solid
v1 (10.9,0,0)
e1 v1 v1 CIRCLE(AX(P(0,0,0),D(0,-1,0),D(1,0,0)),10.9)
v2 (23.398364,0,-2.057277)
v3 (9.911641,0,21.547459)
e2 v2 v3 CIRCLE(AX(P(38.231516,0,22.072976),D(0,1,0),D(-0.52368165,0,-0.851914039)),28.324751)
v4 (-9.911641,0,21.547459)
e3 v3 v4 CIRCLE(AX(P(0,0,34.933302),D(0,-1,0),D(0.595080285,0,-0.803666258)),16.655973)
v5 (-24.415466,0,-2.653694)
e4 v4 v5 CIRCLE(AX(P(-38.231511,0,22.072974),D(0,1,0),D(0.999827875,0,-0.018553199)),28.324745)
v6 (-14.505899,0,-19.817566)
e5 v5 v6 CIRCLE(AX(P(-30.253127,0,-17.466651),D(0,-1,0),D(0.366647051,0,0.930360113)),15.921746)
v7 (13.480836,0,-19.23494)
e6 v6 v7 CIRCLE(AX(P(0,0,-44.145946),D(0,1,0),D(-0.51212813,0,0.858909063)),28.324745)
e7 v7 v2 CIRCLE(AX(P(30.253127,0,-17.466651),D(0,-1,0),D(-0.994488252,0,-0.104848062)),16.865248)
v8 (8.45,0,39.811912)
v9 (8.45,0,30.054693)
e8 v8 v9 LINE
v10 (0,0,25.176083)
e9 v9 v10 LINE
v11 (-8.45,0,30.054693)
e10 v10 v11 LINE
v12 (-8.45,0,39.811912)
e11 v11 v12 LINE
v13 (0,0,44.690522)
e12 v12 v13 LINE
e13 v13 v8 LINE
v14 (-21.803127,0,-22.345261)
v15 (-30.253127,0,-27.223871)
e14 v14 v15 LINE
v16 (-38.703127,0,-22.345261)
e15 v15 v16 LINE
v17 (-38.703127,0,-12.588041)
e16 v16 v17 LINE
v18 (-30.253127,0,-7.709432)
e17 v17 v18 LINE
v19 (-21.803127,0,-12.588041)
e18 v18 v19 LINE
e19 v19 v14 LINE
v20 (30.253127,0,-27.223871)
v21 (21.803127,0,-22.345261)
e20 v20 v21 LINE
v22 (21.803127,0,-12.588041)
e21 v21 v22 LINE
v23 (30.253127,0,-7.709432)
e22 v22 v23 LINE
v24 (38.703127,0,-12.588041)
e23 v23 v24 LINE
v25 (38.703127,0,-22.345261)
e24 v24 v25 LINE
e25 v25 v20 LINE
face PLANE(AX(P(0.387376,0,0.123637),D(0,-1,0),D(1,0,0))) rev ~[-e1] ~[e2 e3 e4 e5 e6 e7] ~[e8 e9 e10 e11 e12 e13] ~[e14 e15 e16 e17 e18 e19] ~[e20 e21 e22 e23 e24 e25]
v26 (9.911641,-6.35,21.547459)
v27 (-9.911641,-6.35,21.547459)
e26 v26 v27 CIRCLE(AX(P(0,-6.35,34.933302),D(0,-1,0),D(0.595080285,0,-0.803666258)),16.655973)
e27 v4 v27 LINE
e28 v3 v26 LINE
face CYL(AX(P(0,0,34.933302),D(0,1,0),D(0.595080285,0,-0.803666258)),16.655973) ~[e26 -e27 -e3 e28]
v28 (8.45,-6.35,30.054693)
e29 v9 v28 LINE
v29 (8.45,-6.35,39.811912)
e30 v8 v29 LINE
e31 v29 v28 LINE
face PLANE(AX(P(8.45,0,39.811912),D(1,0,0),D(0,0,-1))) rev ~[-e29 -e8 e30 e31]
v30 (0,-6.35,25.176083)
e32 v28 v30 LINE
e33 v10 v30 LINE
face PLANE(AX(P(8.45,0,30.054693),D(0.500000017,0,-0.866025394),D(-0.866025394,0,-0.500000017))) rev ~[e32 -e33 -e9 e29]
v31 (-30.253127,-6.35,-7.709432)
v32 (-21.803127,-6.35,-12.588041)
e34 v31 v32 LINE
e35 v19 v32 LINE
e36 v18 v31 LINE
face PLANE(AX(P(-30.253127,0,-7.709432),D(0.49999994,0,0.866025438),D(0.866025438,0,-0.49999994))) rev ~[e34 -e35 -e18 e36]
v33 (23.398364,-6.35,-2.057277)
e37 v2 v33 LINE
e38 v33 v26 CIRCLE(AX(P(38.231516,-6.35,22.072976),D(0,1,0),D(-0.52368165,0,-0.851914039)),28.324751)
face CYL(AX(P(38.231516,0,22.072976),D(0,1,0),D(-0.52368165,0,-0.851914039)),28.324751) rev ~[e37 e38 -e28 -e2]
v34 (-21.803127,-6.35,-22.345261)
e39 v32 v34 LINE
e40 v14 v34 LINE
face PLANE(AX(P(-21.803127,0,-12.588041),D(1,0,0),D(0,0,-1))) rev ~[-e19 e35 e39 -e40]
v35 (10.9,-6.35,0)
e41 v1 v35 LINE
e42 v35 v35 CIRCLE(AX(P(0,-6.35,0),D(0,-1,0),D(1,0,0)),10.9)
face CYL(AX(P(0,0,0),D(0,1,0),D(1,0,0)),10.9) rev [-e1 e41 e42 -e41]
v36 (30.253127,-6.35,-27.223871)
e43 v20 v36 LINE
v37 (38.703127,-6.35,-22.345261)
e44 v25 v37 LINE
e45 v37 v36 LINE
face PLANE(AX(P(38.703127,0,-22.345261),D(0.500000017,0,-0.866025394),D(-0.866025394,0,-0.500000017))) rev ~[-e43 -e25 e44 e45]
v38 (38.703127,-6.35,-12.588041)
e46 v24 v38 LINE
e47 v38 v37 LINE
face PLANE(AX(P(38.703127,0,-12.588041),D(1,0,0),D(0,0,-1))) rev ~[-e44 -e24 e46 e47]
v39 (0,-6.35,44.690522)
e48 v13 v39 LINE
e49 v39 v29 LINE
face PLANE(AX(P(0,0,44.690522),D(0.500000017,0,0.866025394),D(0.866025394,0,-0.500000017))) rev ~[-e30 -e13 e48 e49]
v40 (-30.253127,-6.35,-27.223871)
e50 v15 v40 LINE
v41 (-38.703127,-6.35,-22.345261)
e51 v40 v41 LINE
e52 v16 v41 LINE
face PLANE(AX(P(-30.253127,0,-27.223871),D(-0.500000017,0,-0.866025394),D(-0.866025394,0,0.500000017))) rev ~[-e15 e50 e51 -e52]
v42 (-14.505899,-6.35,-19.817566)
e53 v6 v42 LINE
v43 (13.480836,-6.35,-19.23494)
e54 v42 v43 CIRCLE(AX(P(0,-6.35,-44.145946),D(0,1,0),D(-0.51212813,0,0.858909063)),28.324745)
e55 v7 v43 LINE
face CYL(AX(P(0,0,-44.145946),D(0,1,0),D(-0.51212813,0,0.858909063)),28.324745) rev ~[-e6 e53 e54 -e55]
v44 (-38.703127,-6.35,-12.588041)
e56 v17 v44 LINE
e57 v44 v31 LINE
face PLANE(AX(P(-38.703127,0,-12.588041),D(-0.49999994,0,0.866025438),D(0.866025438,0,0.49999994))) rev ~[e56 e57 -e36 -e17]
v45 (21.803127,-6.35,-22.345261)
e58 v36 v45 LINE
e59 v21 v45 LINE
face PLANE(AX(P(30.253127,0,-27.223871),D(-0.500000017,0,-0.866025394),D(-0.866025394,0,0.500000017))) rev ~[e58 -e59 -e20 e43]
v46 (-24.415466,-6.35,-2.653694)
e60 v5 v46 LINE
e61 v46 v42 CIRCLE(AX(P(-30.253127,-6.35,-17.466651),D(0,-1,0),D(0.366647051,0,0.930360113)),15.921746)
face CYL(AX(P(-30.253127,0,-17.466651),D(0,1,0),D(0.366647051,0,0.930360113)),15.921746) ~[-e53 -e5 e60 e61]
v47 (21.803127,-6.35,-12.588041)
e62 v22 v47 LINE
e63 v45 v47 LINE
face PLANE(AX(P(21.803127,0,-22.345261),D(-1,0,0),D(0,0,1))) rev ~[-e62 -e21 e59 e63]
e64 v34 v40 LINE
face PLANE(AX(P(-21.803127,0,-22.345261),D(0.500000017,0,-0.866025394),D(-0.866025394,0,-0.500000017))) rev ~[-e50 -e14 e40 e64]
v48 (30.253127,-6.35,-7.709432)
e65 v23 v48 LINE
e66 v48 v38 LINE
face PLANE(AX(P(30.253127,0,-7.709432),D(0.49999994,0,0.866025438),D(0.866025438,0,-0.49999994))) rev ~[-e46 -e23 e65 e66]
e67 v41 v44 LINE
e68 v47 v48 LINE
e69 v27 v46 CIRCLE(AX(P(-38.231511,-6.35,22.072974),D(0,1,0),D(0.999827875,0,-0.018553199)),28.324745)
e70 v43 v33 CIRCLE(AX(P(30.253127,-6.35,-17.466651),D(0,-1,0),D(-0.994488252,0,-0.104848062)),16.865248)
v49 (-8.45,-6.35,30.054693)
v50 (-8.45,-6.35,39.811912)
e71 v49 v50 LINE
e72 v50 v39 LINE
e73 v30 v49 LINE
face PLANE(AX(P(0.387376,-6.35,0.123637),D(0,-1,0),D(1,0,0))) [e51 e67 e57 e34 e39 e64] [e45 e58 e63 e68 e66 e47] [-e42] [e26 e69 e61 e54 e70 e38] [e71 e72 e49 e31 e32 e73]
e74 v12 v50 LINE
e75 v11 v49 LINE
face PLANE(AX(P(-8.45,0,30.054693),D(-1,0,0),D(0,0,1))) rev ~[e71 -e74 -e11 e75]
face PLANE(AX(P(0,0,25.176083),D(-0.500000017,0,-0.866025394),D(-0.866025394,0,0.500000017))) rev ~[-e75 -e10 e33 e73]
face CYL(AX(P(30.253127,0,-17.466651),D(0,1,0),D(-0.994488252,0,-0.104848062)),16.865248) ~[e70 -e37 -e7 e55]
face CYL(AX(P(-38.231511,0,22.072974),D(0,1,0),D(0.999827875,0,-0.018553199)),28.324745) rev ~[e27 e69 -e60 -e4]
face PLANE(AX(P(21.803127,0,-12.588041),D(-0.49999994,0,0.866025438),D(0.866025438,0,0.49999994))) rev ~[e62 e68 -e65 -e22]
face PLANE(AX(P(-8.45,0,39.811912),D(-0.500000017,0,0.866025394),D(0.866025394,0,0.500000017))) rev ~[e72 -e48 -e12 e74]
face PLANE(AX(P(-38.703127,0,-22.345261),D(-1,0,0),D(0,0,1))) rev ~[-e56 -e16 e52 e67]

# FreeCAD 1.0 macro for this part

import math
import FreeCAD as App
import Part
import Sketcher
from FreeCAD import Vector
Q = App.Units.Quantity

doc = App.newDocument("Part")
body = doc.addObject("PartDesign::Body", "Body")

# Sketch on XZ plane
sketch1 = doc.addObject("Sketcher::SketchObject", "Sketch")
body.addObject(sketch1)
sketch1.AttachmentSupport = (doc.XZ_Plane, [""])
sketch1.MapMode = "FlatFace"
sketch1.addGeometry([
    Part.ArcOfCircle(Part.Circle(Vector(0, -44.145946, 0), Vector(0, 0, 1), 28.324745), math.radians(61.579527), math.radians(120.805688)),  # 0
    Part.ArcOfCircle(Part.Circle(Vector(30.253127, -17.466651, 0), Vector(0, 0, 1), 16.865248), math.radians(-173.981587), math.radians(113.981589)),  # 1
    Part.ArcOfCircle(Part.Circle(Vector(38.231516, 22.072976, 0), Vector(0, 0, 1), 28.324751), math.radians(-178.936915), math.radians(-121.579535)),  # 2
    Part.ArcOfCircle(Part.Circle(Vector(0, 34.933302, 0), Vector(0, 0, 1), 16.655973), math.radians(-53.481644), math.radians(233.481644)),  # 3
    Part.ArcOfCircle(Part.Circle(Vector(-38.231511, 22.072974, 0), Vector(0, 0, 1), 28.324745), math.radians(-60.805691), math.radians(-1.063081)),  # 4
    Part.ArcOfCircle(Part.Circle(Vector(-30.253127, -17.466651, 0), Vector(0, 0, 1), 15.921746), math.radians(68.49102), math.radians(351.508985)),  # 5
    Part.LineSegment(Vector(-30.253127, -7.709432, 0), Vector(-21.803127, -12.588041, 0)),  # 6
    Part.LineSegment(Vector(-21.803127, -12.588041, 0), Vector(-21.803127, -22.345261, 0)),  # 7
    Part.LineSegment(Vector(-21.803127, -22.345261, 0), Vector(-30.253127, -27.223871, 0)),  # 8
    Part.LineSegment(Vector(-30.253127, -27.223871, 0), Vector(-38.703127, -22.345261, 0)),  # 9
    Part.LineSegment(Vector(-38.703127, -22.345261, 0), Vector(-38.703127, -12.588041, 0)),  # 10
    Part.LineSegment(Vector(-38.703127, -12.588041, 0), Vector(-30.253127, -7.709432, 0)),  # 11
    Part.LineSegment(Vector(21.803127, -22.345261, 0), Vector(21.803127, -12.588041, 0)),  # 12
    Part.LineSegment(Vector(21.803127, -12.588041, 0), Vector(30.253127, -7.709432, 0)),  # 13
    Part.LineSegment(Vector(30.253127, -7.709432, 0), Vector(38.703127, -12.588041, 0)),  # 14
    Part.LineSegment(Vector(38.703127, -12.588041, 0), Vector(38.703127, -22.345261, 0)),  # 15
    Part.LineSegment(Vector(38.703127, -22.345261, 0), Vector(30.253127, -27.223871, 0)),  # 16
    Part.LineSegment(Vector(30.253127, -27.223871, 0), Vector(21.803127, -22.345261, 0)),  # 17
    Part.Circle(Vector(0, 0, 0), Vector(0, 0, 1), 10.9),  # 18
    Part.LineSegment(Vector(-8.45, 39.811912, 0), Vector(0, 44.690522, 0)),  # 19
    Part.LineSegment(Vector(0, 44.690522, 0), Vector(8.45, 39.811912, 0)),  # 20
    Part.LineSegment(Vector(8.45, 39.811912, 0), Vector(8.45, 30.054693, 0)),  # 21
    Part.LineSegment(Vector(8.45, 30.054693, 0), Vector(0, 25.176083, 0)),  # 22
    Part.LineSegment(Vector(0, 25.176083, 0), Vector(-8.45, 30.054693, 0)),  # 23
    Part.LineSegment(Vector(-8.45, 30.054693, 0), Vector(-8.45, 39.811912, 0)),  # 24
], False)
sketch1.addConstraint([
    Sketcher.Constraint("Coincident", 0, 1, 1, 1),
    Sketcher.Constraint("Coincident", 1, 2, 2, 2),
    Sketcher.Constraint("Coincident", 2, 1, 3, 1),
    Sketcher.Constraint("Coincident", 3, 2, 4, 2),
    Sketcher.Constraint("Coincident", 4, 1, 5, 1),
    Sketcher.Constraint("Coincident", 5, 2, 0, 2),
    Sketcher.Constraint("Coincident", 6, 2, 7, 1),
    Sketcher.Constraint("Coincident", 7, 2, 8, 1),
    Sketcher.Constraint("Coincident", 8, 2, 9, 1),
    Sketcher.Constraint("Coincident", 9, 2, 10, 1),
    Sketcher.Constraint("Coincident", 10, 2, 11, 1),
    Sketcher.Constraint("Coincident", 11, 2, 6, 1),
    Sketcher.Constraint("Coincident", 12, 2, 13, 1),
    Sketcher.Constraint("Coincident", 13, 2, 14, 1),
    Sketcher.Constraint("Coincident", 14, 2, 15, 1),
    Sketcher.Constraint("Coincident", 15, 2, 16, 1),
    Sketcher.Constraint("Coincident", 16, 2, 17, 1),
    Sketcher.Constraint("Coincident", 17, 2, 12, 1),
    Sketcher.Constraint("Coincident", 19, 2, 20, 1),
    Sketcher.Constraint("Coincident", 20, 2, 21, 1),
    Sketcher.Constraint("Coincident", 21, 2, 22, 1),
    Sketcher.Constraint("Coincident", 22, 2, 23, 1),
    Sketcher.Constraint("Coincident", 23, 2, 24, 1),
    Sketcher.Constraint("Coincident", 24, 2, 19, 1),
    Sketcher.Constraint("Vertical", 7),
    Sketcher.Constraint("Vertical", 10),
    Sketcher.Constraint("Vertical", 12),
    Sketcher.Constraint("Vertical", 15),
    Sketcher.Constraint("Vertical", 21),
    Sketcher.Constraint("Vertical", 24),
    Sketcher.Constraint("Coincident", 18, 3, -1, 1),
    Sketcher.Constraint("PointOnObject", 0, 3, -2),
    Sketcher.Constraint("PointOnObject", 3, 3, -2),
    Sketcher.Constraint("PointOnObject", 19, 2, -2),
    Sketcher.Constraint("PointOnObject", 22, 2, -2),
    Sketcher.Constraint("Diameter", 18, Q("21.8 mm")),
    Sketcher.Constraint("DistanceX", 9, 2, 7, 2, Q("16.9 mm")),
    Sketcher.Constraint("DistanceX", 12, 2, 14, 2, Q("16.9 mm")),
    Sketcher.Constraint("DistanceX", 23, 2, 21, 2, Q("16.9 mm")),
    Sketcher.Constraint("DistanceX", -1, 1, 20, 2, Q("8.45 mm")),
    Sketcher.Constraint("Radius", 1, Q("16.865248 mm")),
    Sketcher.Constraint("Radius", 2, Q("28.324751 mm")),
    Sketcher.Constraint("DistanceX", 5, 3, 6, 2, Q("8.45 mm")),
    Sketcher.Constraint("DistanceX", 8, 2, 7, 2, Q("8.45 mm")),
    Sketcher.Constraint("DistanceX", 11, 2, 6, 2, Q("8.45 mm")),
    Sketcher.Constraint("DistanceX", 12, 2, 1, 3, Q("8.45 mm")),
    Sketcher.Constraint("DistanceX", 12, 2, 13, 2, Q("8.45 mm")),
    Sketcher.Constraint("DistanceX", 16, 2, 15, 2, Q("8.45 mm")),
    Sketcher.Constraint("Radius", 0, Q("28.324745 mm")),
    Sketcher.Constraint("Radius", 3, Q("16.655973 mm")),
    Sketcher.Constraint("Radius", 4, Q("28.324745 mm")),
    Sketcher.Constraint("Radius", 5, Q("15.921746 mm")),
    Sketcher.Constraint("DistanceY", 7, 2, 7, 1, Q("9.75722 mm")),
    Sketcher.Constraint("DistanceY", 10, 1, 10, 2, Q("9.75722 mm")),
    Sketcher.Constraint("DistanceY", 12, 1, 12, 2, Q("9.75722 mm")),
    Sketcher.Constraint("DistanceY", 15, 2, 15, 1, Q("9.75722 mm")),
    Sketcher.Constraint("DistanceY", 21, 2, 21, 1, Q("9.757219 mm")),
    Sketcher.Constraint("DistanceY", 24, 1, 24, 2, Q("9.757219 mm")),
    Sketcher.Constraint("DistanceX", 5, 2, -1, 1, Q("14.505899 mm")),
    Sketcher.Constraint("DistanceY", 0, 1, 2, 1, Q("40.782399 mm")),
    Sketcher.Constraint("DistanceY", 0, 1, 6, 2, Q("6.646899 mm")),
    Sketcher.Constraint("DistanceY", 0, 1, 12, 2, Q("6.646899 mm")),
    Sketcher.Constraint("DistanceY", 0, 1, 14, 2, Q("6.646899 mm")),
    Sketcher.Constraint("Distance", 6, Q("9.757219 mm")),
    Sketcher.Constraint("Distance", 8, Q("9.75722 mm")),
    Sketcher.Constraint("Distance", 9, Q("9.75722 mm")),
    Sketcher.Constraint("Distance", 13, Q("9.757219 mm")),
    Sketcher.Constraint("Distance", 16, Q("9.75722 mm")),
    Sketcher.Constraint("Distance", 19, Q("9.75722 mm")),
    Sketcher.Constraint("Distance", 20, Q("9.75722 mm")),
    Sketcher.Constraint("Distance", 22, Q("9.75722 mm")),
    Sketcher.Constraint("DistanceY", 1, 3, -1, 1, Q("17.466651 mm")),
    Sketcher.Constraint("DistanceX", 4, 3, -1, 1, Q("38.231511 mm")),
    Sketcher.Constraint("DistanceY", 5, 3, -1, 1, Q("17.466651 mm")),
    Sketcher.Constraint("DistanceY", 0, 1, -1, 1, Q("19.23494 mm")),
    Sketcher.Constraint("DistanceX", -1, 1, 2, 1, Q("9.911641 mm")),
    Sketcher.Constraint("DistanceX", 1, 3, 2, 3, Q("7.978389 mm")),
    Sketcher.Constraint("DistanceY", 0, 3, 2, 3, Q("66.218922 mm")),
    Sketcher.Constraint("DistanceY", 4, 3, 3, 3, Q("12.860329 mm")),
    Sketcher.Constraint("DistanceY", 3, 3, 19, 2, Q("9.75722 mm")),
])
pad1 = doc.addObject("PartDesign::Pad", "Pad")
body.addObject(pad1)
pad1.Profile = sketch1
pad1.Length = 6.35

doc.recompute()
